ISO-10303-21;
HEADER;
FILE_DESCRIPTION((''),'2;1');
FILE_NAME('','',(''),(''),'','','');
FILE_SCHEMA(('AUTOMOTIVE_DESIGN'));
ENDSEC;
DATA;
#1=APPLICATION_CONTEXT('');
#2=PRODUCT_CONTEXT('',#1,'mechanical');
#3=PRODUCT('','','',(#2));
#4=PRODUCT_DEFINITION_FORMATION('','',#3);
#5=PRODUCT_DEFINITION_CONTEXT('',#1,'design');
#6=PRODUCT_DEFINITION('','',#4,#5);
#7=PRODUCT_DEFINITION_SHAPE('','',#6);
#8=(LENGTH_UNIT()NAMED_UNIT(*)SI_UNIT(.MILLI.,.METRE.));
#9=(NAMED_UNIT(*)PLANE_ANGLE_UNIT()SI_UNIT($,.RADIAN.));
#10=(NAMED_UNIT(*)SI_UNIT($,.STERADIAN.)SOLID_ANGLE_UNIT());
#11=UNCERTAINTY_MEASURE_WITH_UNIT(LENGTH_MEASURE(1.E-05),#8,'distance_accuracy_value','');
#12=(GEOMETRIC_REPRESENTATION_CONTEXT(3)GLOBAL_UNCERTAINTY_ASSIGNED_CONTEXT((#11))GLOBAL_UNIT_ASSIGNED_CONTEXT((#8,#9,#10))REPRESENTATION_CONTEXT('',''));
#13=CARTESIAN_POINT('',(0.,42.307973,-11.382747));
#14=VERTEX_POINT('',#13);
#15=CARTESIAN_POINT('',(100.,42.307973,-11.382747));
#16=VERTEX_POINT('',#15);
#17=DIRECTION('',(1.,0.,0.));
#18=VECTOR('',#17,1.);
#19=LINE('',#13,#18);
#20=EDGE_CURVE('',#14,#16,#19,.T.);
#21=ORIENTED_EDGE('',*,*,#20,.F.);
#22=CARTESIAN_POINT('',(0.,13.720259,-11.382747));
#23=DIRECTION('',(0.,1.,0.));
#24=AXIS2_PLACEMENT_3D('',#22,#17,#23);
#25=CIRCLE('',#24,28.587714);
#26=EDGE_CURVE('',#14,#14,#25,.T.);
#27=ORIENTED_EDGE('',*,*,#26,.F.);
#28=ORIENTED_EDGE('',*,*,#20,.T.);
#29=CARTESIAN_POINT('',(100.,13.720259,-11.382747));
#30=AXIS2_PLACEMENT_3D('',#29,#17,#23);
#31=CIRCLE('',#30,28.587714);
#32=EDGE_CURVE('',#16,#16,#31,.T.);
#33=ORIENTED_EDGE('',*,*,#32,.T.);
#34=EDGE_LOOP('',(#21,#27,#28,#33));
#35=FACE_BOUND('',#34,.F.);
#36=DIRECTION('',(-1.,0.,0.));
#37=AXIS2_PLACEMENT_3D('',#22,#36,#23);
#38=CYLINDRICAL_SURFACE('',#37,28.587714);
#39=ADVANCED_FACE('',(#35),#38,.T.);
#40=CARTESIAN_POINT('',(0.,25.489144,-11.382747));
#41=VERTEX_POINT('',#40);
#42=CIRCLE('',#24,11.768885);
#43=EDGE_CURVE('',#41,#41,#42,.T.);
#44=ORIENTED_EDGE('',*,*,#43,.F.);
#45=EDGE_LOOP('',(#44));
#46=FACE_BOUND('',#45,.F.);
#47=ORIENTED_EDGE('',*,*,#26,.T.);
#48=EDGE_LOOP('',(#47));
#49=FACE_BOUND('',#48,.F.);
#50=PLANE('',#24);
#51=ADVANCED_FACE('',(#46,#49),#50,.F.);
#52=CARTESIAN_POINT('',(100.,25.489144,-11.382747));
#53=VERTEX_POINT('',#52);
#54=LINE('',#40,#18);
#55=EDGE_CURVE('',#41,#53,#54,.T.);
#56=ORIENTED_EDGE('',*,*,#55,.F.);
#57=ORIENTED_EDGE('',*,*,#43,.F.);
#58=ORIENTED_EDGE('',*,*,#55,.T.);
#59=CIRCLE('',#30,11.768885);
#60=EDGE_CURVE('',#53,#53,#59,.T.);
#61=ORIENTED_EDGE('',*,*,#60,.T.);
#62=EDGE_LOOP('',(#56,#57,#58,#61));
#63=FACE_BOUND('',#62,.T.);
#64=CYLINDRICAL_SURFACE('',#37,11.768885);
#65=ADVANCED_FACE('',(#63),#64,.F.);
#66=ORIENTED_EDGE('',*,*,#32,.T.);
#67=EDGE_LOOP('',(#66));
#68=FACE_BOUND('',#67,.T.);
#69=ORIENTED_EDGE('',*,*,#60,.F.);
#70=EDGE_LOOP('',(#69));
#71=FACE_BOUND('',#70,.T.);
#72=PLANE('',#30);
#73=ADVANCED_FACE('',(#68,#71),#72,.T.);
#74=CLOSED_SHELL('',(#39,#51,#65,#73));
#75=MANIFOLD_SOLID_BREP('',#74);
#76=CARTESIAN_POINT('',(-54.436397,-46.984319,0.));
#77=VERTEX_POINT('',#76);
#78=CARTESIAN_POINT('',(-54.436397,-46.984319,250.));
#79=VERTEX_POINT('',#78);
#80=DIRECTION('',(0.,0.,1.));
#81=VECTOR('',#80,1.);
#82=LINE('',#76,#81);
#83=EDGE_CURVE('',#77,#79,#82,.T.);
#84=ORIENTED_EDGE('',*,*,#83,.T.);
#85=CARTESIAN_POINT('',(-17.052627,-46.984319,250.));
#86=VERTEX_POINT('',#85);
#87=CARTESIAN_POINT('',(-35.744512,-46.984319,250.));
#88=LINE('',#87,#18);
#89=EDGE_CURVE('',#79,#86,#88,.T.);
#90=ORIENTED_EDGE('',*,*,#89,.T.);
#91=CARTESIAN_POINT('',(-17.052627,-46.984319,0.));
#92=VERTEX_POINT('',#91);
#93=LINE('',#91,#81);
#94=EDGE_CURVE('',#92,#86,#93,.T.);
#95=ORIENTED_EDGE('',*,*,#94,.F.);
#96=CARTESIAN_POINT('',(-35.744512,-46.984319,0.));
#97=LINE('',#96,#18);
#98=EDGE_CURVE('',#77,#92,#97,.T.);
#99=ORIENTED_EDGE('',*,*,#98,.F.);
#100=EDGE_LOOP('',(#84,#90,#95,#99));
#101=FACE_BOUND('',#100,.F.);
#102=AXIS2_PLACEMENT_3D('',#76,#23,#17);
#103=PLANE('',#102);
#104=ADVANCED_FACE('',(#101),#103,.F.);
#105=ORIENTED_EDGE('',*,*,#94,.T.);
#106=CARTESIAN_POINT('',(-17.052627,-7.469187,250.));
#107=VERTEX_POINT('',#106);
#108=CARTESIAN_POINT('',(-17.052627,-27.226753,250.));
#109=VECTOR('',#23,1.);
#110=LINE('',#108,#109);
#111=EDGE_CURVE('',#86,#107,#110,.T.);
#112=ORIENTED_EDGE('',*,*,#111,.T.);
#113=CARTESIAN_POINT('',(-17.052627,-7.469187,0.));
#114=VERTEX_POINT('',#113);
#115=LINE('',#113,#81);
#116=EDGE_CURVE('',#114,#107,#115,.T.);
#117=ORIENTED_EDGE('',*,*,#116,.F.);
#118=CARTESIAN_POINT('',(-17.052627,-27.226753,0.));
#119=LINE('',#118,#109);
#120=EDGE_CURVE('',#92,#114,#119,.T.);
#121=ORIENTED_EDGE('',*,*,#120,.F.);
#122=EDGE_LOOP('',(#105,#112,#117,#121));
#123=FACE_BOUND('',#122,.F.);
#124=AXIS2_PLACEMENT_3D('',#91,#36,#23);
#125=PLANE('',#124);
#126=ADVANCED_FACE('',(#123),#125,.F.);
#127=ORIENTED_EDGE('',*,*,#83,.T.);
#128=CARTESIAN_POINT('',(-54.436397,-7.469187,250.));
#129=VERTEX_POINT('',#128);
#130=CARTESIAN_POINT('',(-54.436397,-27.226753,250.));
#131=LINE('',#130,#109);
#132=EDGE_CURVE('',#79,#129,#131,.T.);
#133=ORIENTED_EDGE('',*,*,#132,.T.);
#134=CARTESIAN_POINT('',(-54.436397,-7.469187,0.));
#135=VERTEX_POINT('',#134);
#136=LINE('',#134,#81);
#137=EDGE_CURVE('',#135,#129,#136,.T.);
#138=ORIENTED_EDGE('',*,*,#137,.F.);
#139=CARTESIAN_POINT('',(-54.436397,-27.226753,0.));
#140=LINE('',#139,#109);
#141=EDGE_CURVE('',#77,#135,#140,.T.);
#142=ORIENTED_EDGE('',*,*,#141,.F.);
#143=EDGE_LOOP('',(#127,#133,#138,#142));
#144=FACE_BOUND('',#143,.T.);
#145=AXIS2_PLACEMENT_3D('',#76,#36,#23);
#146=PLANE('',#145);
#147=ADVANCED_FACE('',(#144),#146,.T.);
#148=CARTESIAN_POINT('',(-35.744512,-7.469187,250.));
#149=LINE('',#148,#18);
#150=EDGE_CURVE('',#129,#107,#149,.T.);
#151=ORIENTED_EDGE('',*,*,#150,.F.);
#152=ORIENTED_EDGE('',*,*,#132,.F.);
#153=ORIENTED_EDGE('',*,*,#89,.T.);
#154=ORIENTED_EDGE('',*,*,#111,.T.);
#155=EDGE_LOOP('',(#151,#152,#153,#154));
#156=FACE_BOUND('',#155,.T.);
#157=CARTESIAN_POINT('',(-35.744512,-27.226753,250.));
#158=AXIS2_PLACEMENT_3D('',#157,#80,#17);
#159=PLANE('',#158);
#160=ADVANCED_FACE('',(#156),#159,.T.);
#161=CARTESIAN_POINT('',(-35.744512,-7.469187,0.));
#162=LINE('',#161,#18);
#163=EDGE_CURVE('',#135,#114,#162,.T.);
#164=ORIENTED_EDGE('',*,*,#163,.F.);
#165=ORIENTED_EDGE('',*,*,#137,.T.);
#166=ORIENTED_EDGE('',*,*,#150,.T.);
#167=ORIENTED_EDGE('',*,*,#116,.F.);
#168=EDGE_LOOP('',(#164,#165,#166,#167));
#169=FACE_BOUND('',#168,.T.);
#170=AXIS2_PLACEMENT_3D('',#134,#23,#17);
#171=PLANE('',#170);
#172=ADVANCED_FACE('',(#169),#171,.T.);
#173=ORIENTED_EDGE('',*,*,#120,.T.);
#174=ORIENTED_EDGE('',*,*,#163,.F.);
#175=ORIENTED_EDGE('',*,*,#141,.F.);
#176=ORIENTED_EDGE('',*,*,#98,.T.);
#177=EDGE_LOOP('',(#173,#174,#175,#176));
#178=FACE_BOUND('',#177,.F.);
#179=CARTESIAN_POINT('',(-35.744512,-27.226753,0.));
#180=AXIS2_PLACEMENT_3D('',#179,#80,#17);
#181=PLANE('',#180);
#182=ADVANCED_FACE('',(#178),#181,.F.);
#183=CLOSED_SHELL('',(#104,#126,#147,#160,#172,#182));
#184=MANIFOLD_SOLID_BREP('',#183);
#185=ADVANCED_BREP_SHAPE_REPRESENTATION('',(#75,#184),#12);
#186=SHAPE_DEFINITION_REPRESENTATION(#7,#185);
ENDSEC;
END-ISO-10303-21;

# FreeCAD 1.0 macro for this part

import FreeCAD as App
import Part
import Sketcher

V = App.Vector
Q = App.Units.Quantity

doc = App.newDocument("Part")
params = doc.addObject("Spreadsheet::Sheet", "Params")
for row, (alias, value) in enumerate([
    ("pad1_length", "100 mm"),
    ("pad2_length", "250 mm"),
], start=1):
    params.set(f"A{row}", alias)
    params.set(f"B{row}", "=" + value)
    params.setAlias(f"B{row}", alias)

body = doc.addObject("PartDesign::Body", "Body")

# Sketch on YZ plane
sketch1 = body.newObject("Sketcher::SketchObject", "Sketch")
sketch1.AttachmentSupport = (doc.getObject("YZ_Plane"), [""])
sketch1.MapMode = "FlatFace"
sketch1.addGeometry(Part.Circle(V(14, -11, 0), V(0, 0, 1), 29), False)
sketch1.addGeometry(Part.Circle(V(14, -11, 0), V(0, 0, 1), 12), False)
sketch1.addConstraint(Sketcher.Constraint("Coincident", 1, 3, 0, 3))
sketch1.addConstraint(Sketcher.Constraint("Diameter", 1, Q("23.53777 mm")))
sketch1.addConstraint(Sketcher.Constraint("Diameter", 0, Q("57.175428 mm")))
sketch1.addConstraint(Sketcher.Constraint("DistanceX", -1, 1, 0, 3, Q("13.720259 mm")))
sketch1.addConstraint(Sketcher.Constraint("DistanceY", 0, 3, -1, 1, Q("11.382747 mm")))
pad1 = body.newObject("PartDesign::Pad", "Pad")
pad1.Profile = sketch1
pad1.setExpression("Length", "Params.pad1_length")
body2 = doc.addObject("PartDesign::Body", "Body001")

# Sketch on XY plane
sketch2 = body2.newObject("Sketcher::SketchObject", "Sketch001")
sketch2.AttachmentSupport = (doc.getObject("XY_Plane001"), [""])
sketch2.MapMode = "FlatFace"
sketch2.addGeometry(Part.LineSegment(V(-54, -7, 0), V(-54, -47, 0)), False)
sketch2.addGeometry(Part.LineSegment(V(-54, -47, 0), V(-17, -47, 0)), False)
sketch2.addGeometry(Part.LineSegment(V(-17, -47, 0), V(-17, -7, 0)), False)
sketch2.addGeometry(Part.LineSegment(V(-17, -7, 0), V(-54, -7, 0)), False)
sketch2.addConstraint(Sketcher.Constraint("Coincident", 0, 2, 1, 1))
sketch2.addConstraint(Sketcher.Constraint("Coincident", 1, 2, 2, 1))
sketch2.addConstraint(Sketcher.Constraint("Coincident", 2, 2, 3, 1))
sketch2.addConstraint(Sketcher.Constraint("Coincident", 3, 2, 0, 1))
sketch2.addConstraint(Sketcher.Constraint("Vertical", 0))
sketch2.addConstraint(Sketcher.Constraint("Horizontal", 1))
sketch2.addConstraint(Sketcher.Constraint("Vertical", 2))
sketch2.addConstraint(Sketcher.Constraint("Horizontal", 3))
sketch2.addConstraint(Sketcher.Constraint("DistanceX", 1, 1, 1, 2, Q("37.383769 mm")))
sketch2.addConstraint(Sketcher.Constraint("DistanceY", 0, 2, 0, 1, Q("39.515132 mm")))
sketch2.addConstraint(Sketcher.Constraint("DistanceY", 0, 2, -1, 1, Q("46.984319 mm")))
sketch2.addConstraint(Sketcher.Constraint("DistanceX", 0, 2, -1, 1, Q("54.436397 mm")))
pad2 = body2.newObject("PartDesign::Pad", "Pad001")
pad2.Profile = sketch2
pad2.setExpression("Length", "Params.pad2_length")

doc.recompute()
